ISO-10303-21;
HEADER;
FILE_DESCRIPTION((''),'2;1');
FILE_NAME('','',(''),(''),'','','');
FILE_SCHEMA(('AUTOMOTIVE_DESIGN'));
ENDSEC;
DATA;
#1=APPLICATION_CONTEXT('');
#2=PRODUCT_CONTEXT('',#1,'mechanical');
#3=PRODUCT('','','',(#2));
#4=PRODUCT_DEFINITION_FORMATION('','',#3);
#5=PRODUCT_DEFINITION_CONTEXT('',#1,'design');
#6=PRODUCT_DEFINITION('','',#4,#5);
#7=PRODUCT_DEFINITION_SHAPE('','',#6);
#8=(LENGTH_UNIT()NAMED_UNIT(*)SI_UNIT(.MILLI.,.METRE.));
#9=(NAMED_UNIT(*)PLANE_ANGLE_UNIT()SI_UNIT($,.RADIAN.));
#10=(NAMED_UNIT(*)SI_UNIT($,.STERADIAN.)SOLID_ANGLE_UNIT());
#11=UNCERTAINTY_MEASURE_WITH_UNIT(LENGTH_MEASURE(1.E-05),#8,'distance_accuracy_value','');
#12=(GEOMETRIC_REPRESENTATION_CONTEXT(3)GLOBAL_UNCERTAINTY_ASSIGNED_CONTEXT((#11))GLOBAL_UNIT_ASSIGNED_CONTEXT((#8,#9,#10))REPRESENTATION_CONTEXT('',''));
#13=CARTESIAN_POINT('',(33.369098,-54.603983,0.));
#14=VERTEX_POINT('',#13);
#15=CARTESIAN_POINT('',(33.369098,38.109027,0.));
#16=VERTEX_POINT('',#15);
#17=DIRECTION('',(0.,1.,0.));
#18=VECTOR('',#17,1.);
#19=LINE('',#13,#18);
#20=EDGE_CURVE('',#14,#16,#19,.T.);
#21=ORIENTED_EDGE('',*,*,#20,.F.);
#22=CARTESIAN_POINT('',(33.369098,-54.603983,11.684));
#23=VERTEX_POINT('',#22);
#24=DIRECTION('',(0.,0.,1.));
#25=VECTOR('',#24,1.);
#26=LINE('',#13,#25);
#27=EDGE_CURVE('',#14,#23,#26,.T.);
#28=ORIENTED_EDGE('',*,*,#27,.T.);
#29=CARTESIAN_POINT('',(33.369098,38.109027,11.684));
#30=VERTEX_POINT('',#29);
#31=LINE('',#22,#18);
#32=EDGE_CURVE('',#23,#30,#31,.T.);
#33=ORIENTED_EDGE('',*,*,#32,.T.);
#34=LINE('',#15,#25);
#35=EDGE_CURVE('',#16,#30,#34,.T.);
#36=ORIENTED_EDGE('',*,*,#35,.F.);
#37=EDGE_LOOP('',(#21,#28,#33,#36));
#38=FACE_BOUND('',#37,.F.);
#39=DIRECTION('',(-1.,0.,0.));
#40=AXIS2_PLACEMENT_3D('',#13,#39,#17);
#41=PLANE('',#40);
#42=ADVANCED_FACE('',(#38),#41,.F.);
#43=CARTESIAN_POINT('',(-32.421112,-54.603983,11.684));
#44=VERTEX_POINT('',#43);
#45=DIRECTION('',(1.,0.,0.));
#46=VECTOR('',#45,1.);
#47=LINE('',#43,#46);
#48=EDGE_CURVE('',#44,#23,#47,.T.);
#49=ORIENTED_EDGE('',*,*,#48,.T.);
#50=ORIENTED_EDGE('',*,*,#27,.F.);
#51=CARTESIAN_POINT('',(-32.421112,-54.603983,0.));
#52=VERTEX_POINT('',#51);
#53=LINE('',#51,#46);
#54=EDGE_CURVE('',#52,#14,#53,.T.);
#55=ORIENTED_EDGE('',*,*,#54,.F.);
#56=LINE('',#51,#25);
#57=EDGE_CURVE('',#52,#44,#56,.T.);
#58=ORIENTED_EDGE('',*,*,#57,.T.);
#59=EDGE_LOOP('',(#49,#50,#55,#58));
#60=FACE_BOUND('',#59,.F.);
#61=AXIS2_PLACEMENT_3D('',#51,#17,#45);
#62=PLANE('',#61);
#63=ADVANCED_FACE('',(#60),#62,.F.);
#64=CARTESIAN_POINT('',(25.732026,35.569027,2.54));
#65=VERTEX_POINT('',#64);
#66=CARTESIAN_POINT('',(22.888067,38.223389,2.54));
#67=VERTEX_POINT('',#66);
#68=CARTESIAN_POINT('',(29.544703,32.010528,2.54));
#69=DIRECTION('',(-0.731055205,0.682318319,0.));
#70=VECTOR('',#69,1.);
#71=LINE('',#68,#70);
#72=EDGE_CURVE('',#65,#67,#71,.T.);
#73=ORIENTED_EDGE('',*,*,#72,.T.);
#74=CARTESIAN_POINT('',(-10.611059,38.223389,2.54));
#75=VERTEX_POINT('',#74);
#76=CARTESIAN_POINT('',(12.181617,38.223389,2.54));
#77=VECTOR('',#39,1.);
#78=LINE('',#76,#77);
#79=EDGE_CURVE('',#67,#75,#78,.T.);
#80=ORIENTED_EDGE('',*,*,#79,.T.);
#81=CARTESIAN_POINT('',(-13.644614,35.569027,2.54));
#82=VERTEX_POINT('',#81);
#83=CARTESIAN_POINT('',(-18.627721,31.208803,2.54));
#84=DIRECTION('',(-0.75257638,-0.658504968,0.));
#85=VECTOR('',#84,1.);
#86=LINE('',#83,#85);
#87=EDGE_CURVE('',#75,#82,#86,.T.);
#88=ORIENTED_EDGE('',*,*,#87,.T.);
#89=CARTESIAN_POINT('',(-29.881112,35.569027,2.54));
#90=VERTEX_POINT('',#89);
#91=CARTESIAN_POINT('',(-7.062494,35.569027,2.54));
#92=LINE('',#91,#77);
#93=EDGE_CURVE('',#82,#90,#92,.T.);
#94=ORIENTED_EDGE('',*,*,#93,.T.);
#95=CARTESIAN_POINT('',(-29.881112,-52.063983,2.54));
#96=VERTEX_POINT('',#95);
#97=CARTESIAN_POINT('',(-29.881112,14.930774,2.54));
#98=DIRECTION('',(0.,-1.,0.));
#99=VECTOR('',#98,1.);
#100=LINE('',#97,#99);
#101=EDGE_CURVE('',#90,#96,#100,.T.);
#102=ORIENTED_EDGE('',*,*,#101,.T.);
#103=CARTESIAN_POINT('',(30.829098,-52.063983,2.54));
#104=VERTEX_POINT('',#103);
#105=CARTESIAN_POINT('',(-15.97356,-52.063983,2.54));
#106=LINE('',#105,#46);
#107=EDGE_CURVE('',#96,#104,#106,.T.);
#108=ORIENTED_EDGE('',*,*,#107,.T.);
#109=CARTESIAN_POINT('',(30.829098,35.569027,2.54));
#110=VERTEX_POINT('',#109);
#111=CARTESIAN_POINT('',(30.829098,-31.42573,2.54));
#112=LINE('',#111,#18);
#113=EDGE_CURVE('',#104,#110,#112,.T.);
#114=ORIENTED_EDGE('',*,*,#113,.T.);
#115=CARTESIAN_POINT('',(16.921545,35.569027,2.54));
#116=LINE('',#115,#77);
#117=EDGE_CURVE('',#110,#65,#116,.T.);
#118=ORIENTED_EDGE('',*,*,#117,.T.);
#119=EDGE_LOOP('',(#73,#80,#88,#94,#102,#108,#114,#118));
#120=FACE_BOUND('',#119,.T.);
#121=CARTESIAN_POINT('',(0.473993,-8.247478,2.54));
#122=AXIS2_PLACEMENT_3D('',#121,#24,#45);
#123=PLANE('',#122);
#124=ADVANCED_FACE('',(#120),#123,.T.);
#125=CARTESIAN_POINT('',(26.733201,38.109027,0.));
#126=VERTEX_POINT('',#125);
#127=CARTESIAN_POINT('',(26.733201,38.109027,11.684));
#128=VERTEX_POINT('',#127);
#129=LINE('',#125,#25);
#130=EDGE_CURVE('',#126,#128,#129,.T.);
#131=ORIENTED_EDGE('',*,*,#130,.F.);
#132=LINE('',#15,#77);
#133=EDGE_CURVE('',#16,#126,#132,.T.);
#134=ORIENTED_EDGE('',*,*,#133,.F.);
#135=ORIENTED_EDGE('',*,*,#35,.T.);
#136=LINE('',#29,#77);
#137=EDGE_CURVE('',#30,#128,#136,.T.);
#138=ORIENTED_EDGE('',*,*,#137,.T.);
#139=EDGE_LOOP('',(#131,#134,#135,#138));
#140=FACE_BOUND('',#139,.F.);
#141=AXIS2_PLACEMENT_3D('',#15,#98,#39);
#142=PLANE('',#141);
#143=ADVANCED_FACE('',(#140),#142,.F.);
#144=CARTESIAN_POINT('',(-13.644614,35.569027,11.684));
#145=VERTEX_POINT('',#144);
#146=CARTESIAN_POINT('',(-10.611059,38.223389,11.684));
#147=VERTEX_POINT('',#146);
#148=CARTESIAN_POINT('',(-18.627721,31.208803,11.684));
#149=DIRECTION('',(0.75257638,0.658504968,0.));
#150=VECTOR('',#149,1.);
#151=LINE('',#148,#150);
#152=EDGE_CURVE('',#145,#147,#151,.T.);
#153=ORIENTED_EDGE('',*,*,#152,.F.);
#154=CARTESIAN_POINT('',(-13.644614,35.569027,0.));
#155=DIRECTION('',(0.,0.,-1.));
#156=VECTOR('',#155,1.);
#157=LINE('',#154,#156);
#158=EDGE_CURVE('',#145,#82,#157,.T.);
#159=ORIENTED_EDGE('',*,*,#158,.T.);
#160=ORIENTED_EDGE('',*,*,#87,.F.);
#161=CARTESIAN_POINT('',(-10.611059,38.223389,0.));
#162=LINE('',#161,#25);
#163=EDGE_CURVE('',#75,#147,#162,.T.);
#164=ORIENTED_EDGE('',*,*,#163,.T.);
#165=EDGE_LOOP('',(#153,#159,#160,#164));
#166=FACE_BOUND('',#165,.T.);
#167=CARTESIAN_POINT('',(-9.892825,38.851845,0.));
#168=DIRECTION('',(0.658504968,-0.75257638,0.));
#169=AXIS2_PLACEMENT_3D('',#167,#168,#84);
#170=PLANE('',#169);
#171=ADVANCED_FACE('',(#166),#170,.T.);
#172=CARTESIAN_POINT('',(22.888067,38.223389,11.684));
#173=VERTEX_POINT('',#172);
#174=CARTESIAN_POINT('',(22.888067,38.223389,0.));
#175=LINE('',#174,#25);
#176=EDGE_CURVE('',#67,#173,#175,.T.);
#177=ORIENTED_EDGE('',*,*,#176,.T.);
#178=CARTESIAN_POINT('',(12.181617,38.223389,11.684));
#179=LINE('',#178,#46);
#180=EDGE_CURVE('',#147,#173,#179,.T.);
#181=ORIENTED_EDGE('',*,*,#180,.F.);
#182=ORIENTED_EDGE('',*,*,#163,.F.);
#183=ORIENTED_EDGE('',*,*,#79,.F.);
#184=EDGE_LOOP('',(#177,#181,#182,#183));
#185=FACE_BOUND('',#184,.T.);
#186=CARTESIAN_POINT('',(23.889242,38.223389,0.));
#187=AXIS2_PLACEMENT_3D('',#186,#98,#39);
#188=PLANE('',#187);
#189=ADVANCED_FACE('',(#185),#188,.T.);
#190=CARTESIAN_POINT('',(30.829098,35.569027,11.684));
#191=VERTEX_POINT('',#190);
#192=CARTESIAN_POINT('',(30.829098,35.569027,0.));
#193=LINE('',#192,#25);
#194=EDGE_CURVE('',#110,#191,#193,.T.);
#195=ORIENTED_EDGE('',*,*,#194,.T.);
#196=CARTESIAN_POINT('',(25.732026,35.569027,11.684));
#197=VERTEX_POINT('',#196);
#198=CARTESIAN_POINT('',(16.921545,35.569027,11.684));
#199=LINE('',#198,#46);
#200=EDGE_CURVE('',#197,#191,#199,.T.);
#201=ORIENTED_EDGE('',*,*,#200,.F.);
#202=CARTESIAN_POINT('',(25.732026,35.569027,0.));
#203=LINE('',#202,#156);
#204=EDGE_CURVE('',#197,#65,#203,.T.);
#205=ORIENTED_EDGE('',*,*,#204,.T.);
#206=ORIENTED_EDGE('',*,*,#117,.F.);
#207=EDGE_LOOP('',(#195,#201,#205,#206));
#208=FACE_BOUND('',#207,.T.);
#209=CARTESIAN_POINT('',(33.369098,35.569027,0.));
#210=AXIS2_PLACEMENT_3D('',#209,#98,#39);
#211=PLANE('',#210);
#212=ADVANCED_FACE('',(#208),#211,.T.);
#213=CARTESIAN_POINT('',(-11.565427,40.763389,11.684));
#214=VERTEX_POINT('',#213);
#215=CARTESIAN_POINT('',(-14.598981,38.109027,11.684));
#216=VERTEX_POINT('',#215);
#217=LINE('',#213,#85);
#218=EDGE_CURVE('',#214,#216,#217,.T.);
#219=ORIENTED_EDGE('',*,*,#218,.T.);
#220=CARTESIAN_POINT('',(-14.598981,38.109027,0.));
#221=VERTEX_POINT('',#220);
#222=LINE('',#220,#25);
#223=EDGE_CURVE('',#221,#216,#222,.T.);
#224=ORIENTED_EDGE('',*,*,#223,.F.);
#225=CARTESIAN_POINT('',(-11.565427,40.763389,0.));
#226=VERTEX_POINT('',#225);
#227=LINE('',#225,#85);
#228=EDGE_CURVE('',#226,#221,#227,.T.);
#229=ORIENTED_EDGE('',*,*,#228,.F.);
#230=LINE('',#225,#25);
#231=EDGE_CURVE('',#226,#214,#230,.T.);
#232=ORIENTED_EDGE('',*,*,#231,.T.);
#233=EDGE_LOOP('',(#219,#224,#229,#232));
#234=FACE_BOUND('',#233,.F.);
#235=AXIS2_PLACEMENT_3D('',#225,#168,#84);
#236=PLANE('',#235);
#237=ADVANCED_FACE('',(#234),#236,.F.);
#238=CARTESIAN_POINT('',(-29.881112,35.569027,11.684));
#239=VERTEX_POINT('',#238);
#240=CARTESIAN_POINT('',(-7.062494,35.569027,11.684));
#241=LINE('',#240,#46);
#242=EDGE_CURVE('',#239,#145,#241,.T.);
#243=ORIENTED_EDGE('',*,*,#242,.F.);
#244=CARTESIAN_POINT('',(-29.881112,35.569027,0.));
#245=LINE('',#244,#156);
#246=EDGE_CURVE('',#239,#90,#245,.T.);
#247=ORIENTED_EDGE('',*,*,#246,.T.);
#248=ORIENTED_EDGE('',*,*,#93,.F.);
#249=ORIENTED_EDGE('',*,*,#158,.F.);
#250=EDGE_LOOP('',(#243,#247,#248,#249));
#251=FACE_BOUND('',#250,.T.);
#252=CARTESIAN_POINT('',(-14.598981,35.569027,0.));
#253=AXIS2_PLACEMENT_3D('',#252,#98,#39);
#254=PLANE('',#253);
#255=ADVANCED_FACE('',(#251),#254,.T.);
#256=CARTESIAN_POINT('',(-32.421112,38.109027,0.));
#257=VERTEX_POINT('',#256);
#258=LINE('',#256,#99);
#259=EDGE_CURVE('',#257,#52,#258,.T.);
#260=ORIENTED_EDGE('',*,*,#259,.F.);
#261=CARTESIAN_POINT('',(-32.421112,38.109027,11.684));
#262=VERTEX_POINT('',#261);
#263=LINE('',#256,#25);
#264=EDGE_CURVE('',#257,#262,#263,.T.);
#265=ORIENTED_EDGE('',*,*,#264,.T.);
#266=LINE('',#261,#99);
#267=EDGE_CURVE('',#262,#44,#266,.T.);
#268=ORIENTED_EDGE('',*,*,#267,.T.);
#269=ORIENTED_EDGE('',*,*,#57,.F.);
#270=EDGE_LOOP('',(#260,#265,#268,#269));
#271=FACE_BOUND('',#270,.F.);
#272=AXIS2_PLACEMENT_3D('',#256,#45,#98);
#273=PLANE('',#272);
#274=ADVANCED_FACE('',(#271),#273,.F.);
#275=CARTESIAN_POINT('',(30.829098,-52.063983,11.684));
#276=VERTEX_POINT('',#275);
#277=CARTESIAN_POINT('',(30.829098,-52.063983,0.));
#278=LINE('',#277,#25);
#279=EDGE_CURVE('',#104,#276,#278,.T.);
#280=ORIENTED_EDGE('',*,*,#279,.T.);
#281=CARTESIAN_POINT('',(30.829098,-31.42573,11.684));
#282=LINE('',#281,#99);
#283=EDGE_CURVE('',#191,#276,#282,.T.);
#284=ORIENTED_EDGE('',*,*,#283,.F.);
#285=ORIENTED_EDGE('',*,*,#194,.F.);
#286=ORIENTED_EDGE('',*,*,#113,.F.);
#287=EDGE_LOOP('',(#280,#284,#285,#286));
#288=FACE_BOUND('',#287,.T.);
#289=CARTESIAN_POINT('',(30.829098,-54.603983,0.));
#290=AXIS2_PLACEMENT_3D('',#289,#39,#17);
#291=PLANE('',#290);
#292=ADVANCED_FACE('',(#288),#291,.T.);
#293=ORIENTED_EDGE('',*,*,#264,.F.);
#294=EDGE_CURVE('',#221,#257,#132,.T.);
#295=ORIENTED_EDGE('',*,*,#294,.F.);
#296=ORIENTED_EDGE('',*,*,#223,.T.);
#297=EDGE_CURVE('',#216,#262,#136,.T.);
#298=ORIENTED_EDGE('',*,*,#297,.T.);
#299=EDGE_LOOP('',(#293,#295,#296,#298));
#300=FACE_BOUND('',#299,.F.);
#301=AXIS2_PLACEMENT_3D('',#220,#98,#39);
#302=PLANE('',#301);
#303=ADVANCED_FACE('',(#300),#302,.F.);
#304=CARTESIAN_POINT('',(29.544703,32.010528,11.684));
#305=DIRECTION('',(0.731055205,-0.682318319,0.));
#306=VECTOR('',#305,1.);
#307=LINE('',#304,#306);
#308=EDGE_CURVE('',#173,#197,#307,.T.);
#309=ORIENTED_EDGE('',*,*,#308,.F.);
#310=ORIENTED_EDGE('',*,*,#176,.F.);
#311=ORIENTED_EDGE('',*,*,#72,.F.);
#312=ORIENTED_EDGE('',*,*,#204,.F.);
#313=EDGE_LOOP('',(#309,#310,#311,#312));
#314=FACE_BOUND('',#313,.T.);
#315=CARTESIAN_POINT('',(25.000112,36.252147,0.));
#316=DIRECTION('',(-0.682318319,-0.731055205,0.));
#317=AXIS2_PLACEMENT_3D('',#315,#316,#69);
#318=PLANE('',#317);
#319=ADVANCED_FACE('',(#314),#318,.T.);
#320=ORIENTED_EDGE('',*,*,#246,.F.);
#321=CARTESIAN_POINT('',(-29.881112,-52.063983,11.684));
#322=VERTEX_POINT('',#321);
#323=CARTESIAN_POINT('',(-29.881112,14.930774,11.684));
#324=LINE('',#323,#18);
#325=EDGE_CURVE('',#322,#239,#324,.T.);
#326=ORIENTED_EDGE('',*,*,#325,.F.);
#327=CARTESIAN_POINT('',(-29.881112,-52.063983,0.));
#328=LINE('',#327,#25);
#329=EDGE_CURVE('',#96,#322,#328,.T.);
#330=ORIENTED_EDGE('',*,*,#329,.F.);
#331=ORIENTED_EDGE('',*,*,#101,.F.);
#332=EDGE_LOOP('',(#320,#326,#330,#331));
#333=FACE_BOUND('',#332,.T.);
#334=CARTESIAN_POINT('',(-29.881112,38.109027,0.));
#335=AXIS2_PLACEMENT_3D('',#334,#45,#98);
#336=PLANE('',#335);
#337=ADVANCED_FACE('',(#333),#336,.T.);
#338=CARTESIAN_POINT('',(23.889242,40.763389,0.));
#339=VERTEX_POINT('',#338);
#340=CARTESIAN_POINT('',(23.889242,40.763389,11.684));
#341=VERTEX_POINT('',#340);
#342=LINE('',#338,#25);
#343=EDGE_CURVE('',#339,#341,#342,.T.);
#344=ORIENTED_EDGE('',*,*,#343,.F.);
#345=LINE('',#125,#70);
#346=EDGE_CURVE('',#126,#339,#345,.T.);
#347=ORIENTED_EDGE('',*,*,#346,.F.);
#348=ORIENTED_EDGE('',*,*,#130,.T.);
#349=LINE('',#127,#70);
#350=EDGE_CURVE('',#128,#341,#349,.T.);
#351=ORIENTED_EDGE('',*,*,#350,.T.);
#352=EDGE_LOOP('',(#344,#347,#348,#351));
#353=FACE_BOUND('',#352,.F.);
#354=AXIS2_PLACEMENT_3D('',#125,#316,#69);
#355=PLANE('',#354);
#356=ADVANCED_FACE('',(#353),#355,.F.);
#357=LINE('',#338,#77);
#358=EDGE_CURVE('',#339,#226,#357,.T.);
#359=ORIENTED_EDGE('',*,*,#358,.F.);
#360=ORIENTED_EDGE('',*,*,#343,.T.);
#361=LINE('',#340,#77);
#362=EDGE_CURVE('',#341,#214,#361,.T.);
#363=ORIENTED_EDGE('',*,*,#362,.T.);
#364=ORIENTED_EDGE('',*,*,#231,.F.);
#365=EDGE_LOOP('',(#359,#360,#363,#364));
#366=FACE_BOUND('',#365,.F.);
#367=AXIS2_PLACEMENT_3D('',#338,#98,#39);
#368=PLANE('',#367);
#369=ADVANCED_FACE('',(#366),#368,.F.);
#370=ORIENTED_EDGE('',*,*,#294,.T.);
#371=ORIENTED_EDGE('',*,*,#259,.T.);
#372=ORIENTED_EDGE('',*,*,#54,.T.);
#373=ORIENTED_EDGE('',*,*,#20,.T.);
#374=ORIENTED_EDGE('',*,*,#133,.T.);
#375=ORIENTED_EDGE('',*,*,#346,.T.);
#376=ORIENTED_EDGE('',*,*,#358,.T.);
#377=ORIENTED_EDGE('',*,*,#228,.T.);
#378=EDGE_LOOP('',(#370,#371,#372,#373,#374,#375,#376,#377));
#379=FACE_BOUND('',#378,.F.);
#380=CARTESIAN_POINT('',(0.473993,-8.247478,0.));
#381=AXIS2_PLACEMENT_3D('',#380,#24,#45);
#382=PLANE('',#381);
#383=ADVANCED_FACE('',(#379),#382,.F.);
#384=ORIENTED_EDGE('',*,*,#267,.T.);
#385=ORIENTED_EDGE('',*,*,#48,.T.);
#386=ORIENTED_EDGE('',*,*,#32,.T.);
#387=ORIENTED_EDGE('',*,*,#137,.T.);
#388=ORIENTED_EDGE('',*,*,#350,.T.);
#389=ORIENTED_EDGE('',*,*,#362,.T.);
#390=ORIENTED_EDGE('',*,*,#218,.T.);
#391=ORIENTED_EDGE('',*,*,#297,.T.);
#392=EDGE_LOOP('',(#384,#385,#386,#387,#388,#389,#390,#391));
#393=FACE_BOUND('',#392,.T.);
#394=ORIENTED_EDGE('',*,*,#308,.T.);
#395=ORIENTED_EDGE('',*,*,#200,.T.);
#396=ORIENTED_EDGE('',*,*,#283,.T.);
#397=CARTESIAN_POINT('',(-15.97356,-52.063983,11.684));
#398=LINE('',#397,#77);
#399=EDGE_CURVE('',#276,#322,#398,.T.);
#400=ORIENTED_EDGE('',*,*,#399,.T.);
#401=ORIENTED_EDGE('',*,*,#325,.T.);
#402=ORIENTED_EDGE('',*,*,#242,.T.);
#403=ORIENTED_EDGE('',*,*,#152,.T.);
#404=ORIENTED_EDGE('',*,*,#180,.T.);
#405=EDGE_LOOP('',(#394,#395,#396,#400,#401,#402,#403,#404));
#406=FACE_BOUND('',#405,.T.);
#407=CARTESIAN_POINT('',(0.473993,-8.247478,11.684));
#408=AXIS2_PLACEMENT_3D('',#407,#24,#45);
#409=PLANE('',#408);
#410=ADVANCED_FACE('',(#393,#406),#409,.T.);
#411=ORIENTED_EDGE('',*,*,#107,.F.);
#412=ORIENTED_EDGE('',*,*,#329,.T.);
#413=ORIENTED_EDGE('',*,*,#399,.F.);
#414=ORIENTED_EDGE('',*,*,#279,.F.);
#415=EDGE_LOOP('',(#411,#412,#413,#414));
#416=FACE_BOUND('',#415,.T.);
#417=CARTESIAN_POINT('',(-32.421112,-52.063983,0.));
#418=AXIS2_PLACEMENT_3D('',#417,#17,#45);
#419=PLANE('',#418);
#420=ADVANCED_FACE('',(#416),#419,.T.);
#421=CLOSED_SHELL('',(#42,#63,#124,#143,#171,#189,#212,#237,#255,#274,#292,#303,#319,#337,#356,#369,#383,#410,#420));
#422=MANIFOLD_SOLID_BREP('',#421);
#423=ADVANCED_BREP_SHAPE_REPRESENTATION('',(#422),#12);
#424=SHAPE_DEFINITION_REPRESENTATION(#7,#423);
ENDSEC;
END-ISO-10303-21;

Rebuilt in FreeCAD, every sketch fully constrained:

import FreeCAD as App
import Part
import Sketcher


def faces_at(feature, points):
    """Names of the faces that lie closest to the given points."""
    faces = feature.Shape.Faces
    near = lambda p: min(range(len(faces)), key=lambda i: faces[i].distToShape(Part.Vertex(*p))[0])
    return sorted({f"Face{near(p) + 1}" for p in points})

doc = App.newDocument("Part")
params = doc.addObject("Spreadsheet::Sheet", "Params")
for row, (alias, value) in enumerate([
    ("pad1_length", "0.46 in"),
    ("thickness_wall", "0.1 in"),
], start=1):
    params.set(f"A{row}", alias)
    params.set(f"B{row}", "=" + value)
    params.setAlias(f"B{row}", alias)

body = doc.addObject("PartDesign::Body", "Body")

# Sketch on XY plane
sketch1 = body.newObject("Sketcher::SketchObject", "Sketch")
sketch1.AttachmentSupport = (doc.getObject("XY_Plane"), [""])
sketch1.MapMode = "FlatFace"
sketch1.addGeometry([
    Part.LineSegment(App.Vector(-32.4, 38.1, 0), App.Vector(-32.4, -54.6, 0)),  # 0
    Part.LineSegment(App.Vector(-32.4, -54.6, 0), App.Vector(33.4, -54.6, 0)),  # 1
    Part.LineSegment(App.Vector(33.4, -54.6, 0), App.Vector(33.4, 38.1, 0)),  # 2
    Part.LineSegment(App.Vector(33.4, 38.1, 0), App.Vector(26.7, 38.1, 0)),  # 3
    Part.LineSegment(App.Vector(26.7, 38.1, 0), App.Vector(23.9, 40.8, 0)),  # 4
    Part.LineSegment(App.Vector(23.9, 40.8, 0), App.Vector(-11.6, 40.8, 0)),  # 5
    Part.LineSegment(App.Vector(-11.6, 40.8, 0), App.Vector(-14.6, 38.1, 0)),  # 6
    Part.LineSegment(App.Vector(-14.6, 38.1, 0), App.Vector(-32.4, 38.1, 0)),  # 7
], False)
sketch1.addConstraint([
    Sketcher.Constraint("Coincident", 0, 2, 1, 1),
    Sketcher.Constraint("Coincident", 1, 2, 2, 1),
    Sketcher.Constraint("Coincident", 2, 2, 3, 1),
    Sketcher.Constraint("Coincident", 3, 2, 4, 1),
    Sketcher.Constraint("Coincident", 4, 2, 5, 1),
    Sketcher.Constraint("Coincident", 5, 2, 6, 1),
    Sketcher.Constraint("Coincident", 6, 2, 7, 1),
    Sketcher.Constraint("Coincident", 7, 2, 0, 1),
    Sketcher.Constraint("Vertical", 0),
    Sketcher.Constraint("Horizontal", 1),
    Sketcher.Constraint("Vertical", 2),
    Sketcher.Constraint("Horizontal", 3),
    Sketcher.Constraint("Horizontal", 5),
    Sketcher.Constraint("Horizontal", 7),
    Sketcher.Constraint("Horizontal", 3, 2, 6, 2),
    Sketcher.Constraint("DistanceX", 1, 1, 1, 2, 65.79021),
    Sketcher.Constraint("DistanceX", 5, 2, 5, 1, 35.454669),
    Sketcher.Constraint("DistanceX", 7, 2, 7, 1, 17.822131),
    Sketcher.Constraint("DistanceY", 0, 2, 0, 1, 92.71301),
    Sketcher.Constraint("DistanceX", -1, 1, 3, 2, 26.733201),
    Sketcher.Constraint("Distance", 4, 3.890211),
    Sketcher.Constraint("DistanceX", 3, 2, 3, 1, 6.635897),
    Sketcher.Constraint("DistanceX", -1, 1, 4, 2, 23.889242),
    Sketcher.Constraint("DistanceY", -1, 1, 4, 2, 40.763389),
])
pad1 = body.newObject("PartDesign::Pad", "Pad")
pad1.Profile = sketch1
pad1.setExpression("Length", "Params.pad1_length")
doc.recompute()

thickness = body.newObject("PartDesign::Thickness", "Thickness")
thickness.Base = (pad1, faces_at(pad1, [(0.474, -6.92, 11.684)]))
thickness.setExpression("Value", "Params.thickness_wall")
thickness.Reversed = True
thickness.Join = "Intersection"

doc.recompute()
